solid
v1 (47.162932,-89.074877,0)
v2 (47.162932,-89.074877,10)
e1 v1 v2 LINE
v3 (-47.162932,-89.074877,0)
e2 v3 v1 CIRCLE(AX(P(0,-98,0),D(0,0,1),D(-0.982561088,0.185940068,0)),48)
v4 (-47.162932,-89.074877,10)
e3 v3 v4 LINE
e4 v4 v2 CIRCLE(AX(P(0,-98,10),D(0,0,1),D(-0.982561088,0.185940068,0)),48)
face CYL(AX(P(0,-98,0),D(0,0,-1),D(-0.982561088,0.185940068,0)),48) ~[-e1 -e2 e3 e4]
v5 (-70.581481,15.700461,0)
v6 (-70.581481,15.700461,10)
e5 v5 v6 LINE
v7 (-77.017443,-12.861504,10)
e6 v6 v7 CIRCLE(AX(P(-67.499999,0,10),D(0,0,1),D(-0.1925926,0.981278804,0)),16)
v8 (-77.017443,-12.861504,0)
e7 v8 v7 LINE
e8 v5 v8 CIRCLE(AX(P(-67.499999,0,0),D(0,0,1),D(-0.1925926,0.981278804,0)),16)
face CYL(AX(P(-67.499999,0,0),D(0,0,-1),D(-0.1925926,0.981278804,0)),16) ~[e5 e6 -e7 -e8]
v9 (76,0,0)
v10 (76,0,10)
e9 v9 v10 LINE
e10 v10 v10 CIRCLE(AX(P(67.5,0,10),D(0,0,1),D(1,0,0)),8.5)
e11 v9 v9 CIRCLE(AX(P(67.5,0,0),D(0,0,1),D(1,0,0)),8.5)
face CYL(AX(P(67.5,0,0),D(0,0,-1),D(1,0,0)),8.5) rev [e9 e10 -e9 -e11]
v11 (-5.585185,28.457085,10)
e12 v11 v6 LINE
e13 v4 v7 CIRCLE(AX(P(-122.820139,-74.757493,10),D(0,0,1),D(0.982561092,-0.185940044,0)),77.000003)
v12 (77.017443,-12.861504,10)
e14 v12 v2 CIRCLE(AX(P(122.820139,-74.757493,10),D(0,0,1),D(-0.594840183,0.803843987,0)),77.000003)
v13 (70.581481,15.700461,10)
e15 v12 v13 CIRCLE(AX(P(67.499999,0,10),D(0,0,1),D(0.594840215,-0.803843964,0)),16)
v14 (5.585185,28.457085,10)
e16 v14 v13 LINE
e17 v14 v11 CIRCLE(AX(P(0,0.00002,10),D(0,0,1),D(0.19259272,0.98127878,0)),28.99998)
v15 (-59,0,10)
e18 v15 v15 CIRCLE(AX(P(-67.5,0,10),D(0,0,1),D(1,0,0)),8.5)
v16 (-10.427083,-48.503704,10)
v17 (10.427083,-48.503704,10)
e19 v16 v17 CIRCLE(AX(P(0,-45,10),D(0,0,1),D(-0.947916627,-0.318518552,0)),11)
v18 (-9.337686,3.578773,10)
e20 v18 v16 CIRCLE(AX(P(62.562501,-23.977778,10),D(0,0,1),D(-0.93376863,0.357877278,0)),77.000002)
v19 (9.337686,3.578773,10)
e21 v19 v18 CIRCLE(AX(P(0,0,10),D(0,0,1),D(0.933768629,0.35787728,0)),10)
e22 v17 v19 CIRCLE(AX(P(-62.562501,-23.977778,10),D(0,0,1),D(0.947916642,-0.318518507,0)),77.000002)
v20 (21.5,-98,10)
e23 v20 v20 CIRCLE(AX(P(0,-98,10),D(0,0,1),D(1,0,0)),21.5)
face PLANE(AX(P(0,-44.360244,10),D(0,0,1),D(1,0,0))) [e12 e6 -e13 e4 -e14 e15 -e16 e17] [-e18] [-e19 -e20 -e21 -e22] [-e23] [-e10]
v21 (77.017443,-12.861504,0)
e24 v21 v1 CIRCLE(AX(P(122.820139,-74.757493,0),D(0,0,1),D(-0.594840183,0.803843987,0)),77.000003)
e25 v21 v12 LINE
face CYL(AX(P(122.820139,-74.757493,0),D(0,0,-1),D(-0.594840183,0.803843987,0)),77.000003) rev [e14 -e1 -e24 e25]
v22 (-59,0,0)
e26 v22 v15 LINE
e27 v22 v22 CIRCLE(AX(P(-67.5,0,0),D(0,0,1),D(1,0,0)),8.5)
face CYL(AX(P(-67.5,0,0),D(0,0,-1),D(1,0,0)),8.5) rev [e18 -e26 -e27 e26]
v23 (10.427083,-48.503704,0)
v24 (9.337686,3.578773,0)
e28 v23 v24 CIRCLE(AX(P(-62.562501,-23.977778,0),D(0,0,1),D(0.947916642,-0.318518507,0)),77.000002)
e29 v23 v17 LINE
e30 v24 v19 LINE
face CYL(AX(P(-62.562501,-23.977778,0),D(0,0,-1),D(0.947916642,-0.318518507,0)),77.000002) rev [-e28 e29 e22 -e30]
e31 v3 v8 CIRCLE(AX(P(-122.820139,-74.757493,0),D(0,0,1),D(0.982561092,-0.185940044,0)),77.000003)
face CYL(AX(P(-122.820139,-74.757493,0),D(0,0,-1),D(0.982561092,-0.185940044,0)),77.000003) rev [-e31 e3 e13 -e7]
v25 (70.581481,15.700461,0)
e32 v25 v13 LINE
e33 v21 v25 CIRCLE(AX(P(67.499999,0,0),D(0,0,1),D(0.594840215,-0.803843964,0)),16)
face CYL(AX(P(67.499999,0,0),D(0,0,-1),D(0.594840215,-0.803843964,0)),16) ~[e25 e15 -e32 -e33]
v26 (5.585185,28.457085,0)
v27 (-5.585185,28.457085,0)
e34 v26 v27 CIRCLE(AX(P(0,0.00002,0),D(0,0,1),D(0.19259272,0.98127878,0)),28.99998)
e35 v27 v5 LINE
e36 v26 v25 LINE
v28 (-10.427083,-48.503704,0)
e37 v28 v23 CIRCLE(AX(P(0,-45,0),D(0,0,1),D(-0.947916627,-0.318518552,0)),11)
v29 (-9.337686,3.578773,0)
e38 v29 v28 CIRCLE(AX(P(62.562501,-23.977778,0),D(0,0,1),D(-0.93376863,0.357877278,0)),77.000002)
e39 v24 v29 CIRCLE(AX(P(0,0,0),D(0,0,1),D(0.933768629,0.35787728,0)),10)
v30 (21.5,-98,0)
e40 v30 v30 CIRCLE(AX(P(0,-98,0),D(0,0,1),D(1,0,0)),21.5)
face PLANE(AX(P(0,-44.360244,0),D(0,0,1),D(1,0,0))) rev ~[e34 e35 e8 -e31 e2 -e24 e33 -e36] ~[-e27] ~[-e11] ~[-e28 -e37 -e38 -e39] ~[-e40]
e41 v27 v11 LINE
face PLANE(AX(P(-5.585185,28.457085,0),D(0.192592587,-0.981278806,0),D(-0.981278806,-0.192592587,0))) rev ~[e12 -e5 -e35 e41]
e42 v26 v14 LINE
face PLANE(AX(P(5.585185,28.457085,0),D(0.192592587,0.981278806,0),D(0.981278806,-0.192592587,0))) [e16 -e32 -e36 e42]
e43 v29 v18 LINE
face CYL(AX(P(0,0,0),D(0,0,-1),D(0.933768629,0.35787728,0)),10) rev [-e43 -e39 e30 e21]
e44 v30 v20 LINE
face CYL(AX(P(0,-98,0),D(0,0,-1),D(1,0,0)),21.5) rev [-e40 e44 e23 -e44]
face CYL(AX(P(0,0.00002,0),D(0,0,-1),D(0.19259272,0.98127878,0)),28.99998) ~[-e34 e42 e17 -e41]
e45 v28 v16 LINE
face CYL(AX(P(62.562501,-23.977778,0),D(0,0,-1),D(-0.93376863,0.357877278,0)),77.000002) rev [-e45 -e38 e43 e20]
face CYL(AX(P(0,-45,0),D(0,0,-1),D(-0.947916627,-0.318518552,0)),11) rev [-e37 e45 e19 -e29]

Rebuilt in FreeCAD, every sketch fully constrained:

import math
import FreeCAD as App
import Part
import Sketcher
from FreeCAD import Vector

doc = App.newDocument("Part")
body = doc.addObject("PartDesign::Body", "Body")

sketch1 = body.newObject("Sketcher::SketchObject", "Sketch")
sketch1.AttachmentSupport = (doc.getObject("XY_Plane"), [""])
sketch1.MapMode = "FlatFace"
sketch1.addGeometry([
    Part.ArcOfCircle(Part.Circle(Vector(0, -98, 0), Vector(0, 0, 1), 48), math.radians(169), math.radians(371)),
    Part.ArcOfCircle(Part.Circle(Vector(123, -75, 0), Vector(0, 0, 1), 77), math.radians(127), math.radians(191)),
    Part.ArcOfCircle(Part.Circle(Vector(67, 0, 0), Vector(0, 0, 1), 16), math.radians(-53), math.radians(79)),
    Part.LineSegment(Vector(71, 16, 0), Vector(6, 28, 0)),
    Part.ArcOfCircle(Part.Circle(Vector(0, 0, 0), Vector(0, 0, 1), 29), math.radians(79), math.radians(101)),
    Part.LineSegment(Vector(-6, 28, 0), Vector(-71, 16, 0)),
    Part.ArcOfCircle(Part.Circle(Vector(-67, 0, 0), Vector(0, 0, 1), 16), math.radians(101), math.radians(233)),
    Part.ArcOfCircle(Part.Circle(Vector(-123, -75, 0), Vector(0, 0, 1), 77), math.radians(-11), math.radians(53)),
    Part.Circle(Vector(0, -98, 0), Vector(0, 0, 1), 22),
    Part.Circle(Vector(-68, 0, 0), Vector(0, 0, 1), 8),
    Part.ArcOfCircle(Part.Circle(Vector(0, 0, 0), Vector(0, 0, 1), 10), math.radians(21), math.radians(159)),
    Part.ArcOfCircle(Part.Circle(Vector(-63, -24, 0), Vector(0, 0, 1), 77), math.radians(-19), math.radians(21)),
    Part.ArcOfCircle(Part.Circle(Vector(0, -45, 0), Vector(0, 0, 1), 11), math.radians(-161), math.radians(-19)),
    Part.ArcOfCircle(Part.Circle(Vector(63, -24, 0), Vector(0, 0, 1), 77), math.radians(159), math.radians(199)),
    Part.Circle(Vector(68, 0, 0), Vector(0, 0, 1), 8),
], False)
sketch1.addConstraint([
    Sketcher.Constraint("Tangent", 0, 2, 1, 2),
    Sketcher.Constraint("Tangent", 1, 1, 2, 1),
    Sketcher.Constraint("Tangent", 2, 2, 3, 1),
    Sketcher.Constraint("Tangent", 3, 2, 4, 1),
    Sketcher.Constraint("Tangent", 4, 2, 5, 1),
    Sketcher.Constraint("Tangent", 5, 2, 6, 1),
    Sketcher.Constraint("Tangent", 6, 2, 7, 2),
    Sketcher.Constraint("Tangent", 7, 1, 0, 1),
    Sketcher.Constraint("Tangent", 10, 1, 11, 2),
    Sketcher.Constraint("Tangent", 11, 1, 12, 2),
    Sketcher.Constraint("Tangent", 12, 1, 13, 2),
    Sketcher.Constraint("Tangent", 13, 1, 10, 2),
    Sketcher.Constraint("Coincident", 10, 3, -1, 1),
    Sketcher.Constraint("Coincident", 8, 3, 0, 3),
    Sketcher.Constraint("Coincident", 9, 3, 6, 3),
    Sketcher.Constraint("Coincident", 14, 3, 2, 3),
    Sketcher.Constraint("Equal", 2, 6),
    Sketcher.Constraint("Equal", 1, 7),
    Sketcher.Constraint("Equal", 7, 11),
    Sketcher.Constraint("Equal", 11, 13),
    Sketcher.Constraint("Equal", 9, 14),
    Sketcher.Constraint("Symmetric", 2, 3, 6, 3, -1, 1),
    Sketcher.Constraint("Symmetric", 1, 3, 7, 3, -2),
    Sketcher.Constraint("PointOnObject", 4, 3, -2),
    Sketcher.Constraint("PointOnObject", 12, 3, -2),
    Sketcher.Constraint("Diameter", 8, 43.0),
    Sketcher.Constraint("Diameter", 9, 17.0),
    Sketcher.Constraint("Radius", 0, 48.0),
    Sketcher.Constraint("Radius", 2, 16.0),
    Sketcher.Constraint("Radius", 10, 10.0),
    Sketcher.Constraint("Radius", 12, 11.0),
    Sketcher.Constraint("DistanceY", 0, 3, -1, 1, 98.0),
    Sketcher.Constraint("DistanceY", 12, 3, -1, 1, 45.0),
    Sketcher.Constraint("DistanceX", 6, 3, 2, 3, 134.999999),
    Sketcher.Constraint("Radius", 4, 28.99998),
    Sketcher.Constraint("Radius", 1, 77.000003),
    Sketcher.Constraint("DistanceY", 11, 3, 4, 3, 23.977798),
])
pad1 = body.newObject("PartDesign::Pad", "Pad")
pad1.Profile = sketch1
pad1.Length = 10

doc.recompute()
